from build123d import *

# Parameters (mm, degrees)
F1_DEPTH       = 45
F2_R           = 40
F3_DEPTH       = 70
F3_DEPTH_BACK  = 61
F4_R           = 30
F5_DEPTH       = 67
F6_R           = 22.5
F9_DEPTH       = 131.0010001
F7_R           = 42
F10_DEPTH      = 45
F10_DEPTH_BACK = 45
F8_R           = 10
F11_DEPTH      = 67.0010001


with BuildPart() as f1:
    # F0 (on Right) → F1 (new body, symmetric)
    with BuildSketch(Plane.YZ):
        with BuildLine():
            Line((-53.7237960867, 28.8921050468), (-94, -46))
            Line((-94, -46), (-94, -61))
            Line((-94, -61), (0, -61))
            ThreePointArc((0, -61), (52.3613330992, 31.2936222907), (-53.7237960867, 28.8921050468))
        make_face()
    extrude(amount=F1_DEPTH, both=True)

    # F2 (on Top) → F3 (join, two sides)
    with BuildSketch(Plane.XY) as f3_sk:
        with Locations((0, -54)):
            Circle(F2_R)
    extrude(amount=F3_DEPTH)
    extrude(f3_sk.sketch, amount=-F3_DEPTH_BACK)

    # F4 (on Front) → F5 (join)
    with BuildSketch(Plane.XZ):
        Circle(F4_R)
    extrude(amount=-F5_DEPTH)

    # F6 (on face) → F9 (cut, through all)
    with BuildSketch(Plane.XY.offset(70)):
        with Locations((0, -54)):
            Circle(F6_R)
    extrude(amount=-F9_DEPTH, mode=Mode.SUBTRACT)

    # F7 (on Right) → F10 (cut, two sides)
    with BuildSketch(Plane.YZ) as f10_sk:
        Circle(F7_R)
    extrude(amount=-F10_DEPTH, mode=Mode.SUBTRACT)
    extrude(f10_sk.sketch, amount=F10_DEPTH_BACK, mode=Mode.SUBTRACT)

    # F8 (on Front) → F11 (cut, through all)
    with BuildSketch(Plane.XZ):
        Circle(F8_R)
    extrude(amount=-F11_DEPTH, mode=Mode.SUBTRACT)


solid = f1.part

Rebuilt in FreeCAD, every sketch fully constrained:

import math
import FreeCAD as App
import Part
import Sketcher
from FreeCAD import Vector

doc = App.newDocument("Part")
body = doc.addObject("PartDesign::Body", "Body")

sketch1 = body.newObject("Sketcher::SketchObject", "Sketch")
sketch1.AttachmentSupport = (doc.getObject("YZ_Plane"), [""])
sketch1.MapMode = "FlatFace"
sketch1.addGeometry([
    Part.LineSegment(Vector(-54, 29, 0), Vector(-94, -46, 0)),
    Part.LineSegment(Vector(-94, -46, 0), Vector(-94, -61, 0)),
    Part.LineSegment(Vector(-94, -61, 0), Vector(0, -61, 0)),
    Part.ArcOfCircle(Part.Circle(Vector(0, 0, 0), Vector(0, 0, 1), 61), math.radians(-90), math.radians(152)),
], False)
sketch1.addConstraint([
    Sketcher.Constraint("Coincident", 0, 2, 1, 1),
    Sketcher.Constraint("Coincident", 1, 2, 2, 1),
    Sketcher.Constraint("Tangent", 2, 2, 3, 1),
    Sketcher.Constraint("Tangent", 3, 2, 0, 1),
    Sketcher.Constraint("Vertical", 1),
    Sketcher.Constraint("Horizontal", 2),
    Sketcher.Constraint("Coincident", 3, 3, -1, 1),
    Sketcher.Constraint("Radius", 3, 61.0),
    Sketcher.Constraint("DistanceX", 2, 1, 2, 2, 94.0),
    Sketcher.Constraint("DistanceY", 1, 2, 1, 1, 15.0),
])
pad1 = body.newObject("PartDesign::Pad", "Pad")
pad1.Profile = sketch1
pad1.Length = 90
pad1.Midplane = True

sketch2 = body.newObject("Sketcher::SketchObject", "Sketch001")
sketch2.AttachmentSupport = (doc.getObject("XY_Plane"), [""])
sketch2.MapMode = "FlatFace"
sketch2.addGeometry(Part.Circle(Vector(0, -54, 0), Vector(0, 0, 1), 40), False)
sketch2.addConstraint([
    Sketcher.Constraint("PointOnObject", 0, 3, -2),
    Sketcher.Constraint("Diameter", 0, 80.0),
    Sketcher.Constraint("DistanceY", 0, 3, -1, 1, 54.0),
])
pad2 = body.newObject("PartDesign::Pad", "Pad001")
pad2.Profile = sketch2
pad2.Type = "TwoLengths"
pad2.Length = 70
pad2.Length2 = 61

sketch3 = body.newObject("Sketcher::SketchObject", "Sketch002")
sketch3.AttachmentSupport = (doc.getObject("XZ_Plane"), [""])
sketch3.MapMode = "FlatFace"
sketch3.addGeometry(Part.Circle(Vector(0, 0, 0), Vector(0, 0, 1), 30), False)
sketch3.addConstraint([
    Sketcher.Constraint("Coincident", 0, 3, -1, 1),
    Sketcher.Constraint("Diameter", 0, 60.0),
])
pad3 = body.newObject("PartDesign::Pad", "Pad002")
pad3.Profile = sketch3
pad3.Length = 67
pad3.Reversed = True

sketch4 = body.newObject("Sketcher::SketchObject", "Sketch003")
sketch4.AttachmentSupport = (doc.getObject("XY_Plane"), [""])
sketch4.MapMode = "FlatFace"
sketch4.AttachmentOffset = App.Placement(Vector(0, 0, 70), App.Rotation())
sketch4.addGeometry(Part.Circle(Vector(0, -54, 0), Vector(0, 0, 1), 22), False)
sketch4.addConstraint([
    Sketcher.Constraint("PointOnObject", 0, 3, -2),
    Sketcher.Constraint("Diameter", 0, 45.0),
    Sketcher.Constraint("DistanceY", 0, 3, -1, 1, 54.0),
])
pocket1 = body.newObject("PartDesign::Pocket", "Pocket")
pocket1.Profile = sketch4
pocket1.Type = "ThroughAll"

sketch5 = body.newObject("Sketcher::SketchObject", "Sketch004")
sketch5.AttachmentSupport = (doc.getObject("YZ_Plane"), [""])
sketch5.MapMode = "FlatFace"
sketch5.addGeometry(Part.Circle(Vector(0, 0, 0), Vector(0, 0, 1), 42), False)
sketch5.addConstraint([
    Sketcher.Constraint("Coincident", 0, 3, -1, 1),
    Sketcher.Constraint("Diameter", 0, 84.0),
])
pocket2 = body.newObject("PartDesign::Pocket", "Pocket001")
pocket2.Profile = sketch5
pocket2.Type = "ThroughAll"
pocket2.Midplane = True

sketch6 = body.newObject("Sketcher::SketchObject", "Sketch005")
sketch6.AttachmentSupport = (doc.getObject("XZ_Plane"), [""])
sketch6.MapMode = "FlatFace"
sketch6.addGeometry(Part.Circle(Vector(0, 0, 0), Vector(0, 0, 1), 10), False)
sketch6.addConstraint([
    Sketcher.Constraint("Coincident", 0, 3, -1, 1),
    Sketcher.Constraint("Diameter", 0, 20.0),
])
pocket3 = body.newObject("PartDesign::Pocket", "Pocket002")
pocket3.Profile = sketch6
pocket3.Type = "ThroughAll"

doc.recompute()
